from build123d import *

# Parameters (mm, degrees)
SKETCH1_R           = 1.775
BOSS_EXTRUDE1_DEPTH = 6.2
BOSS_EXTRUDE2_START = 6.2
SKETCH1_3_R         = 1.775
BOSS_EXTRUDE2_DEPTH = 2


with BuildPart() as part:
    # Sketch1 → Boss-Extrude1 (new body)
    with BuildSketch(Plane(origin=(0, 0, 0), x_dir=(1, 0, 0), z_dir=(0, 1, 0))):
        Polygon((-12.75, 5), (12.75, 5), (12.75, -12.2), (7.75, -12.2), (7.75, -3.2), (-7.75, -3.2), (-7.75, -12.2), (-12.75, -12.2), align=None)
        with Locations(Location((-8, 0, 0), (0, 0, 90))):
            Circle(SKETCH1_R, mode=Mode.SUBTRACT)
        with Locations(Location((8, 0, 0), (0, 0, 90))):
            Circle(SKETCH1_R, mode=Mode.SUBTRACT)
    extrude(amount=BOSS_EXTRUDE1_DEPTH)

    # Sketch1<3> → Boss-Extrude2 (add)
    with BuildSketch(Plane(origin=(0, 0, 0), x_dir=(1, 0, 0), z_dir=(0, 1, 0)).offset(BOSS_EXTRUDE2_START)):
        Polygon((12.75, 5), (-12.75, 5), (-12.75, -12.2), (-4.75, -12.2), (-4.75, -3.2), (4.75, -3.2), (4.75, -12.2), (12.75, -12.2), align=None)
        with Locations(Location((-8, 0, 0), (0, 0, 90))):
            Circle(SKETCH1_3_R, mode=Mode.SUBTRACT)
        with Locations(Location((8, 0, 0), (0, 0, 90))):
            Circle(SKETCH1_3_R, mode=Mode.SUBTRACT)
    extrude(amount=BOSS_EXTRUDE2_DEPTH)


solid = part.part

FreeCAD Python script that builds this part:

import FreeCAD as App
import Part
import Sketcher

V = App.Vector
Q = App.Units.Quantity

doc = App.newDocument("Part")
body = doc.addObject("PartDesign::Body", "Body")

# Sketch on XZ plane
sketch1 = body.newObject("Sketcher::SketchObject", "Sketch")
sketch1.AttachmentSupport = (doc.getObject("XZ_Plane"), [""])
sketch1.MapMode = "FlatFace"
sketch1.addGeometry([
    Part.LineSegment(V(12.8, -5, 0), V(-12.8, -5, 0)),  # 0
    Part.LineSegment(V(-12.8, -5, 0), V(-12.8, 12.2, 0)),  # 1
    Part.LineSegment(V(-12.8, 12.2, 0), V(-7.8, 12.2, 0)),  # 2
    Part.LineSegment(V(-7.8, 12.2, 0), V(-7.8, 3.2, 0)),  # 3
    Part.LineSegment(V(-7.8, 3.2, 0), V(7.8, 3.2, 0)),  # 4
    Part.LineSegment(V(7.8, 3.2, 0), V(7.8, 12.2, 0)),  # 5
    Part.LineSegment(V(7.8, 12.2, 0), V(12.8, 12.2, 0)),  # 6
    Part.LineSegment(V(12.8, 12.2, 0), V(12.8, -5, 0)),  # 7
    Part.Circle(V(8, 0, 0), V(0, 0, 1), 1.8),  # 8
    Part.Circle(V(-8, 0, 0), V(0, 0, 1), 1.8),  # 9
], False)
sketch1.addConstraint([
    Sketcher.Constraint("Coincident", 0, 2, 1, 1),
    Sketcher.Constraint("Coincident", 1, 2, 2, 1),
    Sketcher.Constraint("Coincident", 2, 2, 3, 1),
    Sketcher.Constraint("Coincident", 3, 2, 4, 1),
    Sketcher.Constraint("Coincident", 4, 2, 5, 1),
    Sketcher.Constraint("Coincident", 5, 2, 6, 1),
    Sketcher.Constraint("Coincident", 6, 2, 7, 1),
    Sketcher.Constraint("Coincident", 7, 2, 0, 1),
    Sketcher.Constraint("Horizontal", 0),
    Sketcher.Constraint("Vertical", 1),
    Sketcher.Constraint("Horizontal", 2),
    Sketcher.Constraint("Vertical", 3),
    Sketcher.Constraint("Horizontal", 4),
    Sketcher.Constraint("Vertical", 5),
    Sketcher.Constraint("Horizontal", 6),
    Sketcher.Constraint("Vertical", 7),
    Sketcher.Constraint("Equal", 8, 9),
    Sketcher.Constraint("Symmetric", 8, 3, 9, 3, -1, 1),
    Sketcher.Constraint("Symmetric", 2, 2, 5, 2, -2),
    Sketcher.Constraint("PointOnObject", 8, 3, -1),
    Sketcher.Constraint("Equal", 2, 6),
    Sketcher.Constraint("Diameter", 8, Q("3.55 mm")),
    Sketcher.Constraint("DistanceX", 2, 1, 2, 2, Q("5 mm")),
    Sketcher.Constraint("DistanceY", 3, 2, 3, 1, Q("9 mm")),
    Sketcher.Constraint("DistanceX", 0, 2, 0, 1, Q("25.5 mm")),
    Sketcher.Constraint("DistanceY", 1, 1, 1, 2, Q("17.2 mm")),
    Sketcher.Constraint("DistanceX", -1, 1, 8, 3, Q("8 mm")),
    Sketcher.Constraint("DistanceY", 0, 2, -1, 1, Q("5 mm")),
])
pad1 = body.newObject("PartDesign::Pad", "Pad")
pad1.Profile = sketch1
pad1.Length = 6.2
pad1.Reversed = True

# Sketch on XZ plane
sketch2 = body.newObject("Sketcher::SketchObject", "Sketch001")
sketch2.AttachmentSupport = (doc.getObject("XZ_Plane"), [""])
sketch2.MapMode = "FlatFace"
sketch2.AttachmentOffset = App.Placement(V(0, 0, -6.2), App.Rotation())
sketch2.addGeometry([
    Part.LineSegment(V(12.8, -5, 0), V(-12.8, -5, 0)),  # 0
    Part.LineSegment(V(-12.8, -5, 0), V(-12.8, 12.2, 0)),  # 1
    Part.LineSegment(V(-12.8, 12.2, 0), V(-4.8, 12.2, 0)),  # 2
    Part.LineSegment(V(-4.8, 12.2, 0), V(-4.8, 3.2, 0)),  # 3
    Part.LineSegment(V(-4.8, 3.2, 0), V(4.8, 3.2, 0)),  # 4
    Part.LineSegment(V(4.8, 3.2, 0), V(4.8, 12.2, 0)),  # 5
    Part.LineSegment(V(4.8, 12.2, 0), V(12.8, 12.2, 0)),  # 6
    Part.LineSegment(V(12.8, 12.2, 0), V(12.8, -5, 0)),  # 7
    Part.Circle(V(-8, 0, 0), V(0, 0, 1), 1.8),  # 8
    Part.Circle(V(8, 0, 0), V(0, 0, 1), 1.8),  # 9
], False)
sketch2.addConstraint([
    Sketcher.Constraint("Coincident", 0, 2, 1, 1),
    Sketcher.Constraint("Coincident", 1, 2, 2, 1),
    Sketcher.Constraint("Coincident", 2, 2, 3, 1),
    Sketcher.Constraint("Coincident", 3, 2, 4, 1),
    Sketcher.Constraint("Coincident", 4, 2, 5, 1),
    Sketcher.Constraint("Coincident", 5, 2, 6, 1),
    Sketcher.Constraint("Coincident", 6, 2, 7, 1),
    Sketcher.Constraint("Coincident", 7, 2, 0, 1),
    Sketcher.Constraint("Horizontal", 0),
    Sketcher.Constraint("Vertical", 1),
    Sketcher.Constraint("Horizontal", 2),
    Sketcher.Constraint("Vertical", 3),
    Sketcher.Constraint("Horizontal", 4),
    Sketcher.Constraint("Vertical", 5),
    Sketcher.Constraint("Horizontal", 6),
    Sketcher.Constraint("Vertical", 7),
    Sketcher.Constraint("Equal", 8, 9),
    Sketcher.Constraint("Symmetric", 8, 3, 9, 3, -1, 1),
    Sketcher.Constraint("Symmetric", 2, 2, 5, 2, -2),
    Sketcher.Constraint("PointOnObject", 8, 3, -1),
    Sketcher.Constraint("Equal", 2, 6),
    Sketcher.Constraint("Diameter", 8, Q("3.55 mm")),
    Sketcher.Constraint("DistanceX", 2, 1, 2, 2, Q("8 mm")),
    Sketcher.Constraint("DistanceY", 3, 2, 3, 1, Q("9 mm")),
    Sketcher.Constraint("DistanceX", 0, 2, 0, 1, Q("25.5 mm")),
    Sketcher.Constraint("DistanceY", 1, 1, 1, 2, Q("17.2 mm")),
    Sketcher.Constraint("DistanceX", 8, 3, -1, 1, Q("8 mm")),
    Sketcher.Constraint("DistanceY", 0, 2, -1, 1, Q("5 mm")),
])
pad2 = body.newObject("PartDesign::Pad", "Pad001")
pad2.Profile = sketch2
pad2.Length = 2
pad2.Reversed = True

doc.recompute()
